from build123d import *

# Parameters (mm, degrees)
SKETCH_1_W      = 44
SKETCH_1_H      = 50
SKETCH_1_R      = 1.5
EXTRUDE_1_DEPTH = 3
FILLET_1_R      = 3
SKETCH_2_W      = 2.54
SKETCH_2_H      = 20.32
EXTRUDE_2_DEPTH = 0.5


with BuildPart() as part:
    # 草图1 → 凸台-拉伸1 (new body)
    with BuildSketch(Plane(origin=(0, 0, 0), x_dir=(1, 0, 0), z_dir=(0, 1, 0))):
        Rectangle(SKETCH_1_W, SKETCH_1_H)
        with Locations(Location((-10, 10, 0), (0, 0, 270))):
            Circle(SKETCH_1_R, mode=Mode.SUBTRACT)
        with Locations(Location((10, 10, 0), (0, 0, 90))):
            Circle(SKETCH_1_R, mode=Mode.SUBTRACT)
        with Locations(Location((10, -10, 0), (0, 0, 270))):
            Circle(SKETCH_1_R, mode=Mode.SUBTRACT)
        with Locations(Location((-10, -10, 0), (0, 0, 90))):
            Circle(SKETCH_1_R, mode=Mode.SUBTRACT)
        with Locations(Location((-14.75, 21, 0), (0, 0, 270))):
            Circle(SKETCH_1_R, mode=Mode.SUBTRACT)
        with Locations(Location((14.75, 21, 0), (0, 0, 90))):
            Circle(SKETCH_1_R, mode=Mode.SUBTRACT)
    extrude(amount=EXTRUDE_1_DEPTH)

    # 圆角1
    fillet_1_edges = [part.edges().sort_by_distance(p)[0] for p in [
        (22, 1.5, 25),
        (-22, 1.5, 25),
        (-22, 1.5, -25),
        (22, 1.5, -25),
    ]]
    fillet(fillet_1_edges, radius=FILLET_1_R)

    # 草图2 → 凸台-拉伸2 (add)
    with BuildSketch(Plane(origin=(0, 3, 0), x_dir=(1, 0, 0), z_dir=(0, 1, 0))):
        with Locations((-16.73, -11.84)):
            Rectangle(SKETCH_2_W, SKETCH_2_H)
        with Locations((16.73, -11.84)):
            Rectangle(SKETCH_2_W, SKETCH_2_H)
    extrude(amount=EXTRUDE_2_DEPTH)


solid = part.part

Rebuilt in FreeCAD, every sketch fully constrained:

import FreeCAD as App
import Part
import Sketcher
from FreeCAD import Vector


def edges_at(feature, points):
    """Names of the edges that pass closest to the given points."""
    edges = feature.Shape.Edges
    near = lambda p: min(range(len(edges)), key=lambda i: edges[i].distToShape(Part.Vertex(*p))[0])
    return sorted({f"Edge{near(p) + 1}" for p in points})


def add_polygon(sketch, points):
    """Adds a closed chain of lines whose ends are joined by coincident constraints."""
    first, n = sketch.GeometryCount, len(points)
    for a, b in zip(points, points[1:] + points[:1]):
        sketch.addGeometry(Part.LineSegment(App.Vector(*a, 0), App.Vector(*b, 0)), False)
    for i in range(n):
        sketch.addConstraint(Sketcher.Constraint("Coincident", first + i, 2, first + (i + 1) % n, 1))

doc = App.newDocument("Part")
body = doc.addObject("PartDesign::Body", "Body")

# Sketch on XZ plane
sketch1 = body.newObject("Sketcher::SketchObject", "Sketch")
sketch1.AttachmentSupport = (doc.getObject("XZ_Plane"), [""])
sketch1.MapMode = "FlatFace"
add_polygon(sketch1, [(-22, -25), (-22, 25), (22, 25), (22, -25)])  # lines 0-3
sketch1.addGeometry(Part.Circle(Vector(-10, 10, 0), Vector(0, 0, 1), 1.5), False)  # 4
sketch1.addGeometry(Part.Circle(Vector(10, 10, 0), Vector(0, 0, 1), 1.5), False)  # 5
sketch1.addGeometry(Part.Circle(Vector(-10, -10, 0), Vector(0, 0, 1), 1.5), False)  # 6
sketch1.addGeometry(Part.Circle(Vector(-14.75, -21, 0), Vector(0, 0, 1), 1.5), False)  # 7
sketch1.addGeometry(Part.Circle(Vector(10, -10, 0), Vector(0, 0, 1), 1.5), False)  # 8
sketch1.addGeometry(Part.Circle(Vector(14.75, -21, 0), Vector(0, 0, 1), 1.5), False)  # 9
sketch1.addConstraint([
    Sketcher.Constraint("Vertical", 0),
    Sketcher.Constraint("Horizontal", 1),
    Sketcher.Constraint("Vertical", 2),
    Sketcher.Constraint("Horizontal", 3),
    Sketcher.Constraint("Equal", 4, 5),
    Sketcher.Constraint("Equal", 5, 6),
    Sketcher.Constraint("Equal", 6, 7),
    Sketcher.Constraint("Equal", 7, 8),
    Sketcher.Constraint("Equal", 8, 9),
    Sketcher.Constraint("Symmetric", 5, 3, 6, 3, -1, 1),
    Sketcher.Constraint("Symmetric", 4, 3, 8, 3, -1, 1),
    Sketcher.Constraint("Symmetric", 0, 2, 2, 2, -1, 1),
    Sketcher.Constraint("Symmetric", 4, 3, 5, 3, -2),
    Sketcher.Constraint("Symmetric", 7, 3, 9, 3, -2),
    Sketcher.Constraint("Diameter", 4, 3.0),
    Sketcher.Constraint("DistanceX", 1, 1, 1, 2, 44.0),
    Sketcher.Constraint("DistanceY", 0, 1, 0, 2, 50.0),
    Sketcher.Constraint("DistanceX", 4, 3, -1, 1, 10.0),
    Sketcher.Constraint("DistanceY", -1, 1, 4, 3, 10.0),
    Sketcher.Constraint("DistanceY", 7, 3, -1, 1, 21.0),
    Sketcher.Constraint("DistanceX", 7, 3, 9, 3, 29.5),
])
pad1 = body.newObject("PartDesign::Pad", "Pad")
pad1.Profile = sketch1
pad1.Length = 3
pad1.Reversed = True
doc.recompute()

fillet = body.newObject("PartDesign::Fillet", "Fillet")
fillet.Base = (pad1, edges_at(pad1, [
    (22, 1.5, 25),
    (-22, 1.5, 25),
    (-22, 1.5, -25),
    (22, 1.5, -25),
]))
fillet.Radius = 3

# Sketch on XZ plane
sketch2 = body.newObject("Sketcher::SketchObject", "Sketch001")
sketch2.AttachmentSupport = (doc.getObject("XZ_Plane"), [""])
sketch2.MapMode = "FlatFace"
sketch2.AttachmentOffset = App.Placement(Vector(0, 0, -3), App.Rotation())
add_polygon(sketch2, [(-18, 1.68), (-18, 22), (-15.46, 22), (-15.46, 1.68)])  # lines 0-3
add_polygon(sketch2, [(15.46, 1.68), (15.46, 22), (18, 22), (18, 1.68)])  # lines 4-7
sketch2.addConstraint([
    Sketcher.Constraint("Vertical", 0),
    Sketcher.Constraint("Horizontal", 1),
    Sketcher.Constraint("Vertical", 2),
    Sketcher.Constraint("Horizontal", 3),
    Sketcher.Constraint("Vertical", 4),
    Sketcher.Constraint("Horizontal", 5),
    Sketcher.Constraint("Vertical", 6),
    Sketcher.Constraint("Horizontal", 7),
    Sketcher.Constraint("Symmetric", 1, 2, 4, 2, -2),
    Sketcher.Constraint("Symmetric", 3, 2, 6, 2, -2),
    Sketcher.Constraint("DistanceX", 0, 2, -1, 1, 18.0),
    Sketcher.Constraint("DistanceY", -1, 1, 0, 2, 22.0),
    Sketcher.Constraint("DistanceX", 1, 1, 1, 2, 2.54),
    Sketcher.Constraint("DistanceY", 0, 1, 0, 2, 20.32),
])
pad2 = body.newObject("PartDesign::Pad", "Pad001")
pad2.Profile = sketch2
pad2.Length = 0.5
pad2.Reversed = True

doc.recompute()
